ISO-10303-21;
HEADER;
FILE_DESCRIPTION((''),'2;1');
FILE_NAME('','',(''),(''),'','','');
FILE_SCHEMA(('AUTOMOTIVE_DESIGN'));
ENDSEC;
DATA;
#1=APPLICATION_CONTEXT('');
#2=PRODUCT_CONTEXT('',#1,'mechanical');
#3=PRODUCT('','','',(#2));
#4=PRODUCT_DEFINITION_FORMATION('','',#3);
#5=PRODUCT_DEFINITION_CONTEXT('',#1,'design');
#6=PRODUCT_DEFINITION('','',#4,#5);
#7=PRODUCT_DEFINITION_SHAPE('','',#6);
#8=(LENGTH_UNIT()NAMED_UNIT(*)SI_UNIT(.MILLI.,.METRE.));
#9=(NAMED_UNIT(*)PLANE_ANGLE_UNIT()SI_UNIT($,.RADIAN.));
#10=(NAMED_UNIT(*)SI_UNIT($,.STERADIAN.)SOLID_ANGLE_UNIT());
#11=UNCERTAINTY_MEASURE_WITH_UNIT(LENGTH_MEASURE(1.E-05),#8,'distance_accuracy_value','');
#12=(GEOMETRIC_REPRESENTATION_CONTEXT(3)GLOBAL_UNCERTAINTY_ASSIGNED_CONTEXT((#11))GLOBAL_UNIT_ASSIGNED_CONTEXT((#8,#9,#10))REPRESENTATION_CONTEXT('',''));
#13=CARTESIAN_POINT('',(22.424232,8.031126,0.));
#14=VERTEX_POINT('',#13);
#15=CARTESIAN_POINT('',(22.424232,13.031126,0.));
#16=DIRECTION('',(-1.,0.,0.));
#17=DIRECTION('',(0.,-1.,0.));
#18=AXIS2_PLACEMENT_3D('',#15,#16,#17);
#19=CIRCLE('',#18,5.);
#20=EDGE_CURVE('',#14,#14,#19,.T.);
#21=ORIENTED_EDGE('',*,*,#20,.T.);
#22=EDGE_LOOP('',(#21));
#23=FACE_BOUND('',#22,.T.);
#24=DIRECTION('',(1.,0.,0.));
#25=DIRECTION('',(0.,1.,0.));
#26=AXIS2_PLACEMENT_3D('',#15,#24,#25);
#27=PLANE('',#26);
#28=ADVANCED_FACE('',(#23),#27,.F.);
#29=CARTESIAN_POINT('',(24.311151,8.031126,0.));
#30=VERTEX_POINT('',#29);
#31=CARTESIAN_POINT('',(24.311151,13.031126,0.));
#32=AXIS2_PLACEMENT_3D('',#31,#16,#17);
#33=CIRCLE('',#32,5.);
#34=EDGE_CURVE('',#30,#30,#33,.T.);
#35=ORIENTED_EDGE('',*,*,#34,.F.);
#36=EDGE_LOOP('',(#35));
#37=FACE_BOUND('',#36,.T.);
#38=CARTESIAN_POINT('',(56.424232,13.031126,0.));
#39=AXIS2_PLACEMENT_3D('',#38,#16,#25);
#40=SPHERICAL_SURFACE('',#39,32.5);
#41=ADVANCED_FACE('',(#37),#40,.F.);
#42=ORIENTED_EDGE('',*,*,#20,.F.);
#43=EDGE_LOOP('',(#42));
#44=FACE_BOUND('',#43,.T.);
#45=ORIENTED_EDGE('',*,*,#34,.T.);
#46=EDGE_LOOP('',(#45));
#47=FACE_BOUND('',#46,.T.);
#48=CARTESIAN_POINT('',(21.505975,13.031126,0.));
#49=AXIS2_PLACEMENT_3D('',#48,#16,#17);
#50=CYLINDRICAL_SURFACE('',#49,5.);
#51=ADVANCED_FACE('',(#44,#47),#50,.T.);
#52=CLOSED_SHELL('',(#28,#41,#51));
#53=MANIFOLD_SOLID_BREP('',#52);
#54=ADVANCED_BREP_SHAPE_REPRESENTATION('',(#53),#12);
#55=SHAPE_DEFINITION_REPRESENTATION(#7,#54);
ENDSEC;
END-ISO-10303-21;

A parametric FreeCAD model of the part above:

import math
import FreeCAD as App
import Part
import Sketcher

V = App.Vector

doc = App.newDocument("Part")
params = doc.addObject("Spreadsheet::Sheet", "Params")
for row, (alias, value) in enumerate([
    ("sketch1_radius", "32.5 mm"),
    ("sketch1_width", "34 mm"),
    ("sketch1_height", "5 mm"),
    ("revolution_angle", "360 deg"),
], start=1):
    params.set(f"A{row}", alias)
    params.set(f"B{row}", "=" + value)
    params.setAlias(f"B{row}", alias)

body = doc.addObject("PartDesign::Body", "Body")

sketch1 = doc.addObject("Sketcher::SketchObject", "Sketch")
body.addObject(sketch1)
sketch1.AttachmentSupport = (doc.XY_Plane, [""])
sketch1.MapMode = "FlatFace"
sketch1.addGeometry(Part.LineSegment(V(22.424232, 18.031126, 0), V(22.424232, 13.031126, 0)), False)
sketch1.addGeometry(Part.LineSegment(V(22.424232, 13.031126, 0), V(23.924232, 13.031126, 0)), False)
sketch1.addGeometry(Part.ArcOfCircle(Part.Circle(V(56.424232, 13.031126, 0), V(0, 0, 1), 32.5), math.radians(171.150117), math.radians(180)), False)
sketch1.addGeometry(Part.LineSegment(V(24.311151, 18.031126, 0), V(22.424232, 18.031126, 0)), False)
sketch1.addGeometry(Part.LineSegment(V(22.424232, 13.031126, 0), V(56.424232, 13.031126, 0)), True)
sketch1.addConstraint(Sketcher.Constraint("Coincident", 0, 2, 1, 1))
sketch1.addConstraint(Sketcher.Constraint("Coincident", 1, 2, 2, 2))
sketch1.addConstraint(Sketcher.Constraint("Coincident", 2, 1, 3, 1))
sketch1.addConstraint(Sketcher.Constraint("Coincident", 3, 2, 0, 1))
sketch1.addConstraint(Sketcher.Constraint("Vertical", 0))
sketch1.addConstraint(Sketcher.Constraint("Horizontal", 1))
sketch1.addConstraint(Sketcher.Constraint("Horizontal", 3))
sketch1.addConstraint(Sketcher.Constraint("Horizontal", 4))
sketch1.addConstraint(Sketcher.Constraint("Coincident", 4, 1, 0, 2))
sketch1.addConstraint(Sketcher.Constraint("Coincident", 4, 2, 2, 3))
sketch1.addConstraint(Sketcher.Constraint("Radius", 2, 32.5))
sketch1.addConstraint(Sketcher.Constraint("DistanceX", 4, 1, 4, 2, 34.0))
sketch1.addConstraint(Sketcher.Constraint("DistanceY", 0, 2, 0, 1, 5.0))
sketch1.addConstraint(Sketcher.Constraint("DistanceX", -1, 1, 2, 3, 56.424232))
sketch1.addConstraint(Sketcher.Constraint("DistanceY", -1, 1, 2, 3, 13.031126))
sketch1.setExpression("Constraints[10]", "Params.sketch1_radius")
sketch1.setExpression("Constraints[11]", "Params.sketch1_width")
sketch1.setExpression("Constraints[12]", "Params.sketch1_height")
revolution = doc.addObject("PartDesign::Revolution", "Revolution")
body.addObject(revolution)
revolution.Profile = sketch1
revolution.ReferenceAxis = (sketch1, ["Axis0"])
revolution.setExpression("Angle", "Params.revolution_angle")

doc.recompute()
